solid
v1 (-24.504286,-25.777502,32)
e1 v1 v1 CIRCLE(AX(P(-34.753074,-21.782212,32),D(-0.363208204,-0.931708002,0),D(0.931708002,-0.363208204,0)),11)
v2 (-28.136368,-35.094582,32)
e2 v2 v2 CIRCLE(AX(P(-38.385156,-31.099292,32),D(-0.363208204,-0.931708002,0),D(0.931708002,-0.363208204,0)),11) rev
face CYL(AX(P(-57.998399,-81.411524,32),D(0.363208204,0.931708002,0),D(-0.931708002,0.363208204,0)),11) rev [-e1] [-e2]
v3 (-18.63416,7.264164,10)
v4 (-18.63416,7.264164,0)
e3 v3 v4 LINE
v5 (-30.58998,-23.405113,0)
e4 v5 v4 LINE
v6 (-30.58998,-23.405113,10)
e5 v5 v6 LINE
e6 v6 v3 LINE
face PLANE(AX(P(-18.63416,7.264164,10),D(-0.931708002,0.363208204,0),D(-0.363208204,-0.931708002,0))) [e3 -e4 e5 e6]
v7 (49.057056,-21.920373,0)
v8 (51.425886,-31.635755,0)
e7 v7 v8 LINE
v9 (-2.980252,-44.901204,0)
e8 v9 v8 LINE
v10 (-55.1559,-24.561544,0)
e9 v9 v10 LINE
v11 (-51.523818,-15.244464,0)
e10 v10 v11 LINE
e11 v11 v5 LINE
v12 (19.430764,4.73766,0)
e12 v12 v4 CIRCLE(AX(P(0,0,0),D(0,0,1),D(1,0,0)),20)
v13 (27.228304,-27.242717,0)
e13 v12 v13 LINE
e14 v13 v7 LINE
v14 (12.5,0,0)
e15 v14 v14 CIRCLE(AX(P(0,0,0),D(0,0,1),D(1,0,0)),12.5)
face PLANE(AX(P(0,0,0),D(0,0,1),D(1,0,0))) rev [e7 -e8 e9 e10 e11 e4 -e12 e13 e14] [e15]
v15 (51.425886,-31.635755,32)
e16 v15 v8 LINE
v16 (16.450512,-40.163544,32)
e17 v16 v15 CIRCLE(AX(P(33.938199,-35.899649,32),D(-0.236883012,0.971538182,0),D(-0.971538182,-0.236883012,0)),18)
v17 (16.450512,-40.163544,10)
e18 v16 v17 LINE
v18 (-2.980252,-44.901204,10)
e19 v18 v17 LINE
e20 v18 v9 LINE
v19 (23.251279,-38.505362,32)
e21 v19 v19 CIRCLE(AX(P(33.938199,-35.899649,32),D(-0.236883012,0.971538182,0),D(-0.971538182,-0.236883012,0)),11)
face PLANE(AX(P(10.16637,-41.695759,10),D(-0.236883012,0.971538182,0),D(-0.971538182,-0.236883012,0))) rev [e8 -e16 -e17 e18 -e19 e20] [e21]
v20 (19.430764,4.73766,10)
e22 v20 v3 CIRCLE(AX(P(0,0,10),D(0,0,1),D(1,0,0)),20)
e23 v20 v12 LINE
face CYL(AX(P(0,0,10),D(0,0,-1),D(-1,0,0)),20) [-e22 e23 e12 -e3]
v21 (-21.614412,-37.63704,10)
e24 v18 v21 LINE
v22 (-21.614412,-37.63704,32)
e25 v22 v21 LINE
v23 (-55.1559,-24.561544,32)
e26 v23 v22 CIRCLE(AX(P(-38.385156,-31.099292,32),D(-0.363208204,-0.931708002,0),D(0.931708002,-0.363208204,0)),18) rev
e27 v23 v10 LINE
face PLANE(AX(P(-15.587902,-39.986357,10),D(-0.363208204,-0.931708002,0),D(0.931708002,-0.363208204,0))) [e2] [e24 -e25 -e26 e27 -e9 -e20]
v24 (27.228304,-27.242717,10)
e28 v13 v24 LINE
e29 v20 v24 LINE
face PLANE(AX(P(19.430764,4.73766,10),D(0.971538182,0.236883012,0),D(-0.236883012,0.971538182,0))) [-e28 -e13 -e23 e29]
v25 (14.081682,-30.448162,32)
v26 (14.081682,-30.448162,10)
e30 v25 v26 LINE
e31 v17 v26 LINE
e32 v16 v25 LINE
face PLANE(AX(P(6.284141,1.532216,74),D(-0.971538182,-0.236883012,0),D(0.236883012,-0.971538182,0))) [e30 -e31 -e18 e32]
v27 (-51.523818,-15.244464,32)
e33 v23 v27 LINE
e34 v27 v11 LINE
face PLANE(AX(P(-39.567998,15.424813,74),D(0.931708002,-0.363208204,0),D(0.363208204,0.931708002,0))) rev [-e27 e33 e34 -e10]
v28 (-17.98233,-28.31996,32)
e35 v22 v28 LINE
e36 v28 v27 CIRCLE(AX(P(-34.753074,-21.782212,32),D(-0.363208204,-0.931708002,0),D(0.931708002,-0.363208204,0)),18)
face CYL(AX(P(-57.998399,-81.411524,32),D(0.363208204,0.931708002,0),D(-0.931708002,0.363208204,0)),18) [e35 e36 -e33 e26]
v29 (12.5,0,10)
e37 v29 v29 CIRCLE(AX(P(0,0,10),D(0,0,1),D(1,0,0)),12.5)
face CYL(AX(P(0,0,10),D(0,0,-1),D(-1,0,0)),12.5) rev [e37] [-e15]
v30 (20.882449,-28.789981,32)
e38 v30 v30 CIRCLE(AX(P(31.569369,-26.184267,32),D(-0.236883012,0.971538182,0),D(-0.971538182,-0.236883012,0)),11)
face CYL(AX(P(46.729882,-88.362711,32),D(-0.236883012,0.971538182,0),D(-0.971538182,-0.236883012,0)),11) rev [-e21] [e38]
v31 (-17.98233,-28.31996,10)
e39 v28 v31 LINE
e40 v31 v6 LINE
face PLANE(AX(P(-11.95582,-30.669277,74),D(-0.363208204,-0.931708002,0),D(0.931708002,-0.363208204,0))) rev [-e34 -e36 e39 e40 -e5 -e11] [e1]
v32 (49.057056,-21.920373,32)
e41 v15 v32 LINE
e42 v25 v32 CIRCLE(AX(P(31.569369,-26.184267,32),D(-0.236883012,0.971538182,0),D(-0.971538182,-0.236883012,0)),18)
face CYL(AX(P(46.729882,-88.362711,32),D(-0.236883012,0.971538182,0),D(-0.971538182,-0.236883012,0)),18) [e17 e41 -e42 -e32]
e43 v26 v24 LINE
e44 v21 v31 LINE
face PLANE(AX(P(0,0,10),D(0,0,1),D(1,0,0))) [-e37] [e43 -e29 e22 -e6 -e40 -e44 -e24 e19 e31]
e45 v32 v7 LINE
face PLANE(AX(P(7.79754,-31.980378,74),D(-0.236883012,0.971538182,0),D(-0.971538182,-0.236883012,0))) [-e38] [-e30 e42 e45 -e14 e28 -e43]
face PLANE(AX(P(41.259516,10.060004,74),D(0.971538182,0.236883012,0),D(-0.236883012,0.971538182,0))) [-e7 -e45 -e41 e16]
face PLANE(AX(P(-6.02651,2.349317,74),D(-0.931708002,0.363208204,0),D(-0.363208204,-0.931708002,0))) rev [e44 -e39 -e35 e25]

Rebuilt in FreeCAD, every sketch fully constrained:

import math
import FreeCAD as App
import Part
import Sketcher
from FreeCAD import Vector
Q = App.Units.Quantity

doc = App.newDocument("Part")
body = doc.addObject("PartDesign::Body", "Body")

sketch1 = body.newObject("Sketcher::SketchObject", "Sketch")
sketch1.AttachmentSupport = (doc.getObject("XY_Plane"), [""])
sketch1.MapMode = "FlatFace"
sketch1.addGeometry(Part.LineSegment(Vector(-19, 7, 0), Vector(-34, -33, 0)), False)
sketch1.addGeometry(Part.LineSegment(Vector(-34, -33, 0), Vector(-3, -45, 0)), False)
sketch1.addGeometry(Part.LineSegment(Vector(-3, -45, 0), Vector(30, -37, 0)), False)
sketch1.addGeometry(Part.LineSegment(Vector(30, -37, 0), Vector(19, 5, 0)), False)
sketch1.addGeometry(Part.ArcOfCircle(Part.Circle(Vector(0, 0, 0), Vector(0, 0, 1), 20), math.radians(14), math.radians(159)), False)
sketch1.addGeometry(Part.Circle(Vector(0, 0, 0), Vector(0, 0, 1), 12), False)
sketch1.addConstraint(Sketcher.Constraint("Coincident", 0, 2, 1, 1))
sketch1.addConstraint(Sketcher.Constraint("Coincident", 1, 2, 2, 1))
sketch1.addConstraint(Sketcher.Constraint("Coincident", 2, 2, 3, 1))
sketch1.addConstraint(Sketcher.Constraint("Tangent", 3, 2, 4, 1))
sketch1.addConstraint(Sketcher.Constraint("Tangent", 4, 2, 0, 1))
sketch1.addConstraint(Sketcher.Constraint("Coincident", 4, 3, -1, 1))
sketch1.addConstraint(Sketcher.Constraint("Coincident", 5, 3, -1, 1))
sketch1.addConstraint(Sketcher.Constraint("Perpendicular", 0, 1))
sketch1.addConstraint(Sketcher.Constraint("Perpendicular", 2, 3))
sketch1.addConstraint(Sketcher.Constraint("Equal", 1, 2))
sketch1.addConstraint(Sketcher.Constraint("Diameter", 5, Q("25 mm")))
sketch1.addConstraint(Sketcher.Constraint("Radius", 4, Q("20 mm")))
sketch1.addConstraint(Sketcher.Constraint("DistanceY", 2, 2, -1, 1, Q("36.958099 mm")))
sketch1.addConstraint(Sketcher.Constraint("DistanceX", 0, 2, 4, 2, Q("15.587902 mm")))
sketch1.addConstraint(Sketcher.Constraint("Distance", 1, Q("33.531761 mm")))
pad1 = body.newObject("PartDesign::Pad", "Pad")
pad1.Profile = sketch1
pad1.Length = 10

sketch2 = body.newObject("Sketcher::SketchObject", "Sketch001")
sketch2.AttachmentSupport = (doc.getObject("XY_Plane"), [""])
sketch2.MapMode = "FlatFace"
sketch2.AttachmentOffset = App.Placement(Vector(0, 0, 10), App.Rotation())
sketch2.addGeometry(Part.LineSegment(Vector(30, -37, 0), Vector(51, -32, 0)), False)
sketch2.addGeometry(Part.LineSegment(Vector(51, -32, 0), Vector(49, -22, 0)), False)
sketch2.addGeometry(Part.LineSegment(Vector(49, -22, 0), Vector(27, -27, 0)), False)
sketch2.addGeometry(Part.LineSegment(Vector(27, -27, 0), Vector(14, -30, 0)), False)
sketch2.addGeometry(Part.LineSegment(Vector(14, -30, 0), Vector(16, -40, 0)), False)
sketch2.addGeometry(Part.LineSegment(Vector(16, -40, 0), Vector(30, -37, 0)), False)
sketch2.addConstraint(Sketcher.Constraint("Coincident", 0, 2, 1, 1))
sketch2.addConstraint(Sketcher.Constraint("Coincident", 1, 2, 2, 1))
sketch2.addConstraint(Sketcher.Constraint("Coincident", 2, 2, 3, 1))
sketch2.addConstraint(Sketcher.Constraint("Coincident", 3, 2, 4, 1))
sketch2.addConstraint(Sketcher.Constraint("Coincident", 4, 2, 5, 1))
sketch2.addConstraint(Sketcher.Constraint("Coincident", 5, 2, 0, 1))
sketch2.addConstraint(Sketcher.Constraint("Perpendicular", 0, 1))
sketch2.addConstraint(Sketcher.Constraint("Perpendicular", 1, 2))
sketch2.addConstraint(Sketcher.Constraint("Parallel", 2, 3))
sketch2.addConstraint(Sketcher.Constraint("Perpendicular", 3, 4))
sketch2.addConstraint(Sketcher.Constraint("Perpendicular", 4, 5))
sketch2.addConstraint(Sketcher.Constraint("Equal", 0, 2))
sketch2.addConstraint(Sketcher.Constraint("Distance", 1, Q("10 mm")))
sketch2.addConstraint(Sketcher.Constraint("DistanceY", 5, 2, -1, 1, Q("36.958099 mm")))
sketch2.addConstraint(Sketcher.Constraint("Distance", 0, Q("22.468239 mm")))
sketch2.addConstraint(Sketcher.Constraint("Distance", 3, Q("13.531761 mm")))
sketch2.addConstraint(Sketcher.Constraint("DistanceX", -1, 1, 3, 2, Q("14.081682 mm")))
sketch2.addConstraint(Sketcher.Constraint("DistanceY", 3, 2, -1, 1, Q("30.448162 mm")))
pad2 = body.newObject("PartDesign::Pad", "Pad001")
pad2.Profile = sketch2
pad2.Length = 64

sketch3 = body.newObject("Sketcher::SketchObject", "Sketch002")
sketch3.Placement = App.Placement(Vector(7.79754, -31.980378, 0), App.Rotation(Vector(0.971538182, 0.236883012, 0), Vector(0, 0, -1), Vector(-0.236883012, 0.971538182, 0), "ZXY"))
sketch3.addGeometry(Part.Circle(Vector(24, -32, 0), Vector(0, 0, 1), 11), False)
sketch3.addGeometry(Part.ArcOfCircle(Part.Circle(Vector(24, -32, 0), Vector(0, 0, 1), 18), math.radians(180), math.radians(360)), False)
sketch3.addGeometry(Part.LineSegment(Vector(6, -32, 0), Vector(6, -74, 0)), False)
sketch3.addGeometry(Part.LineSegment(Vector(6, -74, 0), Vector(42, -74, 0)), False)
sketch3.addGeometry(Part.LineSegment(Vector(42, -74, 0), Vector(42, -32, 0)), False)
sketch3.addConstraint(Sketcher.Constraint("Tangent", 1, 1, 2, 1))
sketch3.addConstraint(Sketcher.Constraint("Coincident", 2, 2, 3, 1))
sketch3.addConstraint(Sketcher.Constraint("Coincident", 3, 2, 4, 1))
sketch3.addConstraint(Sketcher.Constraint("Tangent", 4, 2, 1, 2))
sketch3.addConstraint(Sketcher.Constraint("Vertical", 2))
sketch3.addConstraint(Sketcher.Constraint("Horizontal", 3))
sketch3.addConstraint(Sketcher.Constraint("Vertical", 4))
sketch3.addConstraint(Sketcher.Constraint("Coincident", 1, 3, 0, 3))
sketch3.addConstraint(Sketcher.Constraint("Diameter", 0, Q("22 mm")))
sketch3.addConstraint(Sketcher.Constraint("Radius", 1, Q("18 mm")))
sketch3.addConstraint(Sketcher.Constraint("DistanceY", 2, 2, 2, 1, Q("42 mm")))
sketch3.addConstraint(Sketcher.Constraint("DistanceY", 0, 3, -1, 1, Q("32 mm")))
sketch3.addConstraint(Sketcher.Constraint("DistanceX", -1, 1, 0, 3, Q("24.468239 mm")))
pocket1 = body.newObject("PartDesign::Pocket", "Pocket")
pocket1.Profile = sketch3
pocket1.Length = 64
doc.recompute()

datumplane = body.newObject("PartDesign::Plane", "DatumPlane")
datumplane.Placement = App.Placement(Vector(0, 0, 0), App.Rotation(Vector(0.066227821, 0.997804528, 0), Vector(0, 0, -1), Vector(-0.997804528, 0.066227821, 0), "ZXY"))
mirrored = body.newObject("PartDesign::Mirrored", "Mirrored")
mirrored.Originals = [pad2, pocket1]
mirrored.MirrorPlane = (datumplane, [""])
body.Tip = mirrored

sketch4 = body.newObject("Sketcher::SketchObject", "Sketch003")
sketch4.AttachmentSupport = (doc.getObject("XY_Plane"), [""])
sketch4.MapMode = "FlatFace"
sketch4.AttachmentOffset = App.Placement(Vector(0, 0, 10), App.Rotation())
sketch4.addGeometry(Part.LineSegment(Vector(49, -22, 0), Vector(51, -32, 0)), False)
sketch4.addGeometry(Part.LineSegment(Vector(51, -32, 0), Vector(30, -37, 0)), False)
sketch4.addGeometry(Part.LineSegment(Vector(30, -37, 0), Vector(27, -27, 0)), False)
sketch4.addGeometry(Part.LineSegment(Vector(27, -27, 0), Vector(49, -22, 0)), False)
sketch4.addConstraint(Sketcher.Constraint("Coincident", 0, 2, 1, 1))
sketch4.addConstraint(Sketcher.Constraint("Coincident", 1, 2, 2, 1))
sketch4.addConstraint(Sketcher.Constraint("Coincident", 2, 2, 3, 1))
sketch4.addConstraint(Sketcher.Constraint("Coincident", 3, 2, 0, 1))
sketch4.addConstraint(Sketcher.Constraint("Perpendicular", 0, 1))
sketch4.addConstraint(Sketcher.Constraint("Perpendicular", 1, 2))
sketch4.addConstraint(Sketcher.Constraint("Perpendicular", 2, 3))
sketch4.addConstraint(Sketcher.Constraint("Distance", 0, Q("10 mm")))
sketch4.addConstraint(Sketcher.Constraint("DistanceY", 1, 2, -1, 1, Q("36.958099 mm")))
sketch4.addConstraint(Sketcher.Constraint("Distance", 1, Q("22.468239 mm")))
sketch4.addConstraint(Sketcher.Constraint("DistanceX", 2, 2, 1, 2, Q("2.36883 mm")))
sketch4.addConstraint(Sketcher.Constraint("DistanceX", -1, 1, 0, 2, Q("51.425886 mm")))
pad3 = body.newObject("PartDesign::Pad", "Pad002")
pad3.Profile = sketch4
pad3.Length = 10
pad3.Reversed = True

sketch5 = body.newObject("Sketcher::SketchObject", "Sketch004")
sketch5.AttachmentSupport = (doc.getObject("XY_Plane"), [""])
sketch5.MapMode = "FlatFace"
sketch5.AttachmentOffset = App.Placement(Vector(0, 0, 10), App.Rotation())
sketch5.addGeometry(Part.LineSegment(Vector(-31, -23, 0), Vector(-34, -33, 0)), False)
sketch5.addGeometry(Part.LineSegment(Vector(-34, -33, 0), Vector(-55, -25, 0)), False)
sketch5.addGeometry(Part.LineSegment(Vector(-55, -25, 0), Vector(-52, -15, 0)), False)
sketch5.addGeometry(Part.LineSegment(Vector(-52, -15, 0), Vector(-31, -23, 0)), False)
sketch5.addConstraint(Sketcher.Constraint("Coincident", 0, 2, 1, 1))
sketch5.addConstraint(Sketcher.Constraint("Coincident", 1, 2, 2, 1))
sketch5.addConstraint(Sketcher.Constraint("Coincident", 2, 2, 3, 1))
sketch5.addConstraint(Sketcher.Constraint("Coincident", 3, 2, 0, 1))
sketch5.addConstraint(Sketcher.Constraint("Perpendicular", 0, 1))
sketch5.addConstraint(Sketcher.Constraint("Perpendicular", 1, 2))
sketch5.addConstraint(Sketcher.Constraint("Perpendicular", 2, 3))
sketch5.addConstraint(Sketcher.Constraint("Distance", 0, Q("10 mm")))
sketch5.addConstraint(Sketcher.Constraint("DistanceX", 1, 2, -1, 1, Q("55.1559 mm")))
sketch5.addConstraint(Sketcher.Constraint("Distance", 1, Q("22.468239 mm")))
sketch5.addConstraint(Sketcher.Constraint("DistanceX", 0, 2, -1, 1, Q("34.222062 mm")))
sketch5.addConstraint(Sketcher.Constraint("DistanceY", 0, 2, -1, 1, Q("32.722193 mm")))
pad4 = body.newObject("PartDesign::Pad", "Pad003")
pad4.Profile = sketch5
pad4.Length = 10
pad4.Reversed = True

doc.recompute()
